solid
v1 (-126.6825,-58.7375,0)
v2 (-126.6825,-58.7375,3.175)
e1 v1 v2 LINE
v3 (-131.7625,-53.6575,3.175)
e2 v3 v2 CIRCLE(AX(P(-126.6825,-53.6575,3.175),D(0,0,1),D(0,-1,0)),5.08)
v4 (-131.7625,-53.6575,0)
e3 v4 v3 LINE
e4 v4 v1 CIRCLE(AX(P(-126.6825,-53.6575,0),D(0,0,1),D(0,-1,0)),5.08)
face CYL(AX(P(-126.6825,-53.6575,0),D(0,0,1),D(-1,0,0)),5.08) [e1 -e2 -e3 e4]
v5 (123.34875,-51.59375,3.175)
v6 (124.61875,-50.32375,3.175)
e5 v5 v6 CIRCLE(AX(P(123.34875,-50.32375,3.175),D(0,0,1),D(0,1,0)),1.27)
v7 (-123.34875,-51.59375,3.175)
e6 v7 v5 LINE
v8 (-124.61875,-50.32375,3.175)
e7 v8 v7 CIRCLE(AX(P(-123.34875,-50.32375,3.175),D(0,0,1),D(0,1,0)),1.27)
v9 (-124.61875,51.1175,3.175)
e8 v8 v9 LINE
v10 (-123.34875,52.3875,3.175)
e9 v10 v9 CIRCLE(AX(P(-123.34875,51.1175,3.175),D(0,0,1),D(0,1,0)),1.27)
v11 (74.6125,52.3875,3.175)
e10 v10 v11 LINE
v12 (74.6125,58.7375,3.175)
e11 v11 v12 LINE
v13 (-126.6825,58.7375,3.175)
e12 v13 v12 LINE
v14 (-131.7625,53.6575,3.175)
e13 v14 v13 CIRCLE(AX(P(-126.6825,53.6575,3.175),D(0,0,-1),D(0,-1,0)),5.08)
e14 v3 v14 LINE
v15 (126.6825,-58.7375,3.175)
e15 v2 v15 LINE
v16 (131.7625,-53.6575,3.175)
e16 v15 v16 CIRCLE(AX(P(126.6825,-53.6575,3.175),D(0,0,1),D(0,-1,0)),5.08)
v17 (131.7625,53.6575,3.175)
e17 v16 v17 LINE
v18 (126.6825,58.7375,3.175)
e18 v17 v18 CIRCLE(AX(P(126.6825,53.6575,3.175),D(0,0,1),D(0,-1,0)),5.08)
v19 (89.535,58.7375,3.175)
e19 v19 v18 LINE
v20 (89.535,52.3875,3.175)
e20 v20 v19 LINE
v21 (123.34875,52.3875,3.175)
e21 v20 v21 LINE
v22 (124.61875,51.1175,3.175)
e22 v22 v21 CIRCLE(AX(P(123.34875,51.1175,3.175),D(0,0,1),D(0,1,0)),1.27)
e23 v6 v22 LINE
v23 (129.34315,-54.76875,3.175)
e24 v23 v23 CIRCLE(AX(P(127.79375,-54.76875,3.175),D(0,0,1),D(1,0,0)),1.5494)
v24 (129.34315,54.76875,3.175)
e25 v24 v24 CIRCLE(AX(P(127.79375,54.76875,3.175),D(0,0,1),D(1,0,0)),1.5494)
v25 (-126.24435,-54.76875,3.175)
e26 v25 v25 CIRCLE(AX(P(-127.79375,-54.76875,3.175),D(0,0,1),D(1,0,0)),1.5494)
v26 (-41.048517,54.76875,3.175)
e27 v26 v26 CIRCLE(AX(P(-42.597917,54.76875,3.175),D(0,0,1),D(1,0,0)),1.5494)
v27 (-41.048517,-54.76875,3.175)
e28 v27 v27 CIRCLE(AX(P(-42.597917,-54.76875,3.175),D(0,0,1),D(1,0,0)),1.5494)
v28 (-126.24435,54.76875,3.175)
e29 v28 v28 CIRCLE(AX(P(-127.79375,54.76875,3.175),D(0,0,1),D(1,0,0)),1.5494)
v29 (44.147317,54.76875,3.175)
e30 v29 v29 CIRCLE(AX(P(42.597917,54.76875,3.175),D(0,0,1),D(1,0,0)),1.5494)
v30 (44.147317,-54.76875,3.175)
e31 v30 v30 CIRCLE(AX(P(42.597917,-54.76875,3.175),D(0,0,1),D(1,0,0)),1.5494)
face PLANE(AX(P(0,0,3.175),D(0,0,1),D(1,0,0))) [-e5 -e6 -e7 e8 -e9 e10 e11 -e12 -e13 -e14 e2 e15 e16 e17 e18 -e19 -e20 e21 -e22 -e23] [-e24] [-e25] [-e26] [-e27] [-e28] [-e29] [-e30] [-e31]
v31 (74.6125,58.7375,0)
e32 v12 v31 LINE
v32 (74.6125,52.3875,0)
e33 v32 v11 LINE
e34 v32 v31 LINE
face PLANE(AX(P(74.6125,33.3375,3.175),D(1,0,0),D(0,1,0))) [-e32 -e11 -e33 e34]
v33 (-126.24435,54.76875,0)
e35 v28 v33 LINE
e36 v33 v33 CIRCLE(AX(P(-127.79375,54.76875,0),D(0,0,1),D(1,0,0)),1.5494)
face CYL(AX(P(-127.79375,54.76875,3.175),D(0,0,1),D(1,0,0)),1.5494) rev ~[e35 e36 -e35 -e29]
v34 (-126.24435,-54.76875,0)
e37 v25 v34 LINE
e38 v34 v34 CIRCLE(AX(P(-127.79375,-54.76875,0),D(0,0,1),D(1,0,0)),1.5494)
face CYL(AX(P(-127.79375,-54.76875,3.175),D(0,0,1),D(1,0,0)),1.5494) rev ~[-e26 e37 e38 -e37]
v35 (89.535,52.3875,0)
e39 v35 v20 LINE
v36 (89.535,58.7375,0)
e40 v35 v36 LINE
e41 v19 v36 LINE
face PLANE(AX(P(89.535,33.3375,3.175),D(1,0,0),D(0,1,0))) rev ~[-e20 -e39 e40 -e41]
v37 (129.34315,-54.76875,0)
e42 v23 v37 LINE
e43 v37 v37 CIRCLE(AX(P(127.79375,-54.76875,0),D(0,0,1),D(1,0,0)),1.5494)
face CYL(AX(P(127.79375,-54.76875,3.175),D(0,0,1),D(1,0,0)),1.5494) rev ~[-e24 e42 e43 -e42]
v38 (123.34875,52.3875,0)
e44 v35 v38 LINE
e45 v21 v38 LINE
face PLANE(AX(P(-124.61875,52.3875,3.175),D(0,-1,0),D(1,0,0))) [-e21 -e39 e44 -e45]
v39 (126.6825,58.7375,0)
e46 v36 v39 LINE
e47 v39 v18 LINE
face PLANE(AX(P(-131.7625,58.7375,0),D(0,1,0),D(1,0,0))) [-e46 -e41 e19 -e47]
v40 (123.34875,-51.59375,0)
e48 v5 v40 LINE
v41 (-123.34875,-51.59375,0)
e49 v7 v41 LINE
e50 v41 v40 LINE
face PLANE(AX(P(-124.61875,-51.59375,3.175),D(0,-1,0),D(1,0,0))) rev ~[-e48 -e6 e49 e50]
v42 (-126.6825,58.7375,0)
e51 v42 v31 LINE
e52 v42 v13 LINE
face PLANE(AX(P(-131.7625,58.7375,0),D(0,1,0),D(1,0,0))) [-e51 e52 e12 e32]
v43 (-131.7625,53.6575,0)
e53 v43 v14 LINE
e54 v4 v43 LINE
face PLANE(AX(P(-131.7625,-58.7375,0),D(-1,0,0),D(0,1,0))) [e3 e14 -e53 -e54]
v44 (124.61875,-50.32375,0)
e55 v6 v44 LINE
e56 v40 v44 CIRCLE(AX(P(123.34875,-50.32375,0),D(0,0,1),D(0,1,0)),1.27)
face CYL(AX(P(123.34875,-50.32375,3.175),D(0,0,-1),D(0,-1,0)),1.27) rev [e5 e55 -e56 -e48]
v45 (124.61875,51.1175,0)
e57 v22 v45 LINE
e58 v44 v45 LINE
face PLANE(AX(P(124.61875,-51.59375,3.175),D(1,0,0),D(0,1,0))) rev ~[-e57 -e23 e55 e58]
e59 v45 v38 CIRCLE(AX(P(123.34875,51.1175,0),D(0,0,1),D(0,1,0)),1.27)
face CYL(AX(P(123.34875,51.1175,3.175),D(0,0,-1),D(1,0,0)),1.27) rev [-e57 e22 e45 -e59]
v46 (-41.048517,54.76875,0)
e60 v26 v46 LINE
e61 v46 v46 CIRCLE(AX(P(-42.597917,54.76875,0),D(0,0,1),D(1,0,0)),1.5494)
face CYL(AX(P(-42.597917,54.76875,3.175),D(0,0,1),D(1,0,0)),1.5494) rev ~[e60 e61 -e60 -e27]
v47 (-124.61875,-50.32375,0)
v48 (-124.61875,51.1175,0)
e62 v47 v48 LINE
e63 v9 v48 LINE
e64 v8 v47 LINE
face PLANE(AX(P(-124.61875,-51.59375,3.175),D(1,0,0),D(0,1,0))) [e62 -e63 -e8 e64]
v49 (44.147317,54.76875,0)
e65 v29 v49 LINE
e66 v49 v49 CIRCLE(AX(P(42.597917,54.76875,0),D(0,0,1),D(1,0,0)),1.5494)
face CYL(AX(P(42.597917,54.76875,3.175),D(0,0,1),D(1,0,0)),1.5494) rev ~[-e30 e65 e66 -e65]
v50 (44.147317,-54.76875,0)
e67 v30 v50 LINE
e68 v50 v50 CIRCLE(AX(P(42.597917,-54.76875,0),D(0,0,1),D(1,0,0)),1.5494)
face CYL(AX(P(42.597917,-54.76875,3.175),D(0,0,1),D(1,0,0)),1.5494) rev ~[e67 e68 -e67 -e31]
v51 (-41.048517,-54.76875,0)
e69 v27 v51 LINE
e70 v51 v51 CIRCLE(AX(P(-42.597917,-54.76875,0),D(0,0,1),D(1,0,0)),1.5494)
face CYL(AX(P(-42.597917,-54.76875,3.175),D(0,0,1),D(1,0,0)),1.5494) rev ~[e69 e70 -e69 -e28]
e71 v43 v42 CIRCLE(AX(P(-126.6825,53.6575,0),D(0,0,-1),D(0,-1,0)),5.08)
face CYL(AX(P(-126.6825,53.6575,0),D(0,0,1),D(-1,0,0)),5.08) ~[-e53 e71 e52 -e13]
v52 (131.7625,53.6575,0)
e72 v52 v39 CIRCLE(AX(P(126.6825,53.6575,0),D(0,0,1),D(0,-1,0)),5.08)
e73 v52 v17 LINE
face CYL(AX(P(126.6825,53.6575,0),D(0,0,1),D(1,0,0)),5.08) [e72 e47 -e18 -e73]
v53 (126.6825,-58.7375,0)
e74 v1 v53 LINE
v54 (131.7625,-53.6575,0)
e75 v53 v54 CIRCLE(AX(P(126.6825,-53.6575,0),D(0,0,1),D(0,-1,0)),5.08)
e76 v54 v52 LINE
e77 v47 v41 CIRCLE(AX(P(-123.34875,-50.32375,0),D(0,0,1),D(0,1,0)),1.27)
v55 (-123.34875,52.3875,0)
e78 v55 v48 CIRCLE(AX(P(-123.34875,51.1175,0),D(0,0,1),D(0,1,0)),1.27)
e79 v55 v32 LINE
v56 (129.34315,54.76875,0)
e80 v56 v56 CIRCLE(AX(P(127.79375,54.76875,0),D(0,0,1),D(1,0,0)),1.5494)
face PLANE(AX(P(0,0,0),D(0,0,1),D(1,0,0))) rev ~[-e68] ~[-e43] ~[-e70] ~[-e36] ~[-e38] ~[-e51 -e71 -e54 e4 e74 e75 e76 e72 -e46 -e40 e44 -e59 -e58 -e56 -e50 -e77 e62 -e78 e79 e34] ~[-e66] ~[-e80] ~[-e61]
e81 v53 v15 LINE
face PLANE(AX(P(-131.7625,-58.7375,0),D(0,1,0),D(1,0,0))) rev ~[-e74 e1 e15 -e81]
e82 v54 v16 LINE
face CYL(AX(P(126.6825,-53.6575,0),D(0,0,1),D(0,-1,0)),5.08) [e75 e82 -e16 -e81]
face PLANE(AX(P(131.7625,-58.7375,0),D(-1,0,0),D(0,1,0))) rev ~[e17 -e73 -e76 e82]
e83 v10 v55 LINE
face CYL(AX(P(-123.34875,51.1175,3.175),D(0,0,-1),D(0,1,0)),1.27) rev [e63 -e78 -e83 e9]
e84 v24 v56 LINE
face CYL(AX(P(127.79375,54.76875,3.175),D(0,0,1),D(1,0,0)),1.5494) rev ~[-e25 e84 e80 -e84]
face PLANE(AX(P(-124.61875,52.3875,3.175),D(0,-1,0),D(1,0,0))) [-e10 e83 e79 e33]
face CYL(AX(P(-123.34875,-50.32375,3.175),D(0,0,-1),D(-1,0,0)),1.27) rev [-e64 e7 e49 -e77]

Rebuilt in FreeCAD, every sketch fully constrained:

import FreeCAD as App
import Part
import Sketcher

V = App.Vector
Q = App.Units.Quantity


def edges_at(feature, points):
    """Names of the edges that pass closest to the given points."""
    edges = feature.Shape.Edges
    near = lambda p: min(range(len(edges)), key=lambda i: edges[i].distToShape(Part.Vertex(*p))[0])
    return sorted({f"Edge{near(p) + 1}" for p in points})

doc = App.newDocument("Part")
params = doc.addObject("Spreadsheet::Sheet", "Params")
for row, (alias, value) in enumerate([
    ("sketch1_width", "10.375 in"),
    ("sketch1_height", "4.625 in"),
    ("pad1_length", "0.125 in"),
    ("sketch2_width", "9.8125 in"),
    ("sketch2_height", "4.09375 in"),
    ("sketch3_height", "1 in"),
    ("sketch4_diameter", "0.122 in"),
    ("fillet_radius", "0.2 in"),
    ("fillet2_radius", "0.05 in"),
], start=1):
    params.set(f"A{row}", alias)
    params.set(f"B{row}", "=" + value)
    params.setAlias(f"B{row}", alias)

body = doc.addObject("PartDesign::Body", "Body")

sketch1 = body.newObject("Sketcher::SketchObject", "Sketch")
sketch1.AttachmentSupport = (doc.getObject("XY_Plane"), [""])
sketch1.MapMode = "FlatFace"
sketch1.addGeometry(Part.LineSegment(V(-131.7625, 58.7375, 0), V(-131.7625, -58.7375, 0)), False)
sketch1.addGeometry(Part.LineSegment(V(-131.7625, -58.7375, 0), V(131.7625, -58.7375, 0)), False)
sketch1.addGeometry(Part.LineSegment(V(131.7625, -58.7375, 0), V(131.7625, 58.7375, 0)), False)
sketch1.addGeometry(Part.LineSegment(V(131.7625, 58.7375, 0), V(-131.7625, 58.7375, 0)), False)
sketch1.addConstraint(Sketcher.Constraint("Coincident", 0, 2, 1, 1))
sketch1.addConstraint(Sketcher.Constraint("Coincident", 1, 2, 2, 1))
sketch1.addConstraint(Sketcher.Constraint("Coincident", 2, 2, 3, 1))
sketch1.addConstraint(Sketcher.Constraint("Coincident", 3, 2, 0, 1))
sketch1.addConstraint(Sketcher.Constraint("Vertical", 0))
sketch1.addConstraint(Sketcher.Constraint("Horizontal", 1))
sketch1.addConstraint(Sketcher.Constraint("Vertical", 2))
sketch1.addConstraint(Sketcher.Constraint("Horizontal", 3))
sketch1.addConstraint(Sketcher.Constraint("Symmetric", 0, 2, 2, 2, -1, 1))
sketch1.addConstraint(Sketcher.Constraint("DistanceX", 1, 1, 1, 2, Q("10.375 in")))
sketch1.addConstraint(Sketcher.Constraint("DistanceY", 0, 2, 0, 1, Q("4.625 in")))
sketch1.setExpression("Constraints[9]", "Params.sketch1_width")
sketch1.setExpression("Constraints[10]", "Params.sketch1_height")
pad1 = body.newObject("PartDesign::Pad", "Pad")
pad1.Profile = sketch1
pad1.setExpression("Length", "Params.pad1_length")

sketch2 = body.newObject("Sketcher::SketchObject", "Sketch001")
sketch2.AttachmentSupport = (doc.getObject("XY_Plane"), [""])
sketch2.MapMode = "FlatFace"
sketch2.AttachmentOffset = App.Placement(V(0, 0, 0.125 * 25.4), App.Rotation())
sketch2.addGeometry(Part.LineSegment(V(-124.61875, 52.3875, 0), V(-124.61875, -51.59375, 0)), False)
sketch2.addGeometry(Part.LineSegment(V(-124.61875, -51.59375, 0), V(124.61875, -51.59375, 0)), False)
sketch2.addGeometry(Part.LineSegment(V(124.61875, -51.59375, 0), V(124.61875, 52.3875, 0)), False)
sketch2.addGeometry(Part.LineSegment(V(124.61875, 52.3875, 0), V(-124.61875, 52.3875, 0)), False)
sketch2.addConstraint(Sketcher.Constraint("Coincident", 0, 2, 1, 1))
sketch2.addConstraint(Sketcher.Constraint("Coincident", 1, 2, 2, 1))
sketch2.addConstraint(Sketcher.Constraint("Coincident", 2, 2, 3, 1))
sketch2.addConstraint(Sketcher.Constraint("Coincident", 3, 2, 0, 1))
sketch2.addConstraint(Sketcher.Constraint("Vertical", 0))
sketch2.addConstraint(Sketcher.Constraint("Horizontal", 1))
sketch2.addConstraint(Sketcher.Constraint("Vertical", 2))
sketch2.addConstraint(Sketcher.Constraint("Horizontal", 3))
sketch2.addConstraint(Sketcher.Constraint("DistanceX", 1, 1, 1, 2, Q("9.8125 in")))
sketch2.addConstraint(Sketcher.Constraint("DistanceY", 0, 2, 0, 1, Q("4.09375 in")))
sketch2.addConstraint(Sketcher.Constraint("DistanceX", 0, 2, -1, 1, Q("4.90625 in")))
sketch2.addConstraint(Sketcher.Constraint("DistanceY", 0, 2, -1, 1, Q("2.03125 in")))
sketch2.setExpression("Constraints[8]", "Params.sketch2_width")
sketch2.setExpression("Constraints[9]", "Params.sketch2_height")
pocket1 = body.newObject("PartDesign::Pocket", "Pocket")
pocket1.Profile = sketch2
pocket1.Type = "ThroughAll"

sketch3 = body.newObject("Sketcher::SketchObject", "Sketch002")
sketch3.AttachmentSupport = (doc.getObject("XY_Plane"), [""])
sketch3.MapMode = "FlatFace"
sketch3.AttachmentOffset = App.Placement(V(0, 0, 0.125 * 25.4), App.Rotation())
sketch3.addGeometry(Part.LineSegment(V(74.6125, 58.7375, 0), V(74.6125, 33.3375, 0)), False)
sketch3.addGeometry(Part.LineSegment(V(74.6125, 33.3375, 0), V(89.535, 33.3375, 0)), False)
sketch3.addGeometry(Part.LineSegment(V(89.535, 33.3375, 0), V(89.535, 58.7375, 0)), False)
sketch3.addGeometry(Part.LineSegment(V(89.535, 58.7375, 0), V(74.6125, 58.7375, 0)), False)
sketch3.addConstraint(Sketcher.Constraint("Coincident", 0, 2, 1, 1))
sketch3.addConstraint(Sketcher.Constraint("Coincident", 1, 2, 2, 1))
sketch3.addConstraint(Sketcher.Constraint("Coincident", 2, 2, 3, 1))
sketch3.addConstraint(Sketcher.Constraint("Coincident", 3, 2, 0, 1))
sketch3.addConstraint(Sketcher.Constraint("Vertical", 0))
sketch3.addConstraint(Sketcher.Constraint("Horizontal", 1))
sketch3.addConstraint(Sketcher.Constraint("Vertical", 2))
sketch3.addConstraint(Sketcher.Constraint("Horizontal", 3))
sketch3.addConstraint(Sketcher.Constraint("DistanceY", 0, 2, 0, 1, Q("1 in")))
sketch3.addConstraint(Sketcher.Constraint("DistanceX", 1, 1, 1, 2, Q("0.5875 in")))
sketch3.addConstraint(Sketcher.Constraint("DistanceX", -1, 1, 0, 2, Q("2.9375 in")))
sketch3.addConstraint(Sketcher.Constraint("DistanceY", -1, 1, 0, 2, Q("1.3125 in")))
sketch3.setExpression("Constraints[8]", "Params.sketch3_height")
pocket2 = body.newObject("PartDesign::Pocket", "Pocket001")
pocket2.Profile = sketch3
pocket2.Type = "ThroughAll"

sketch4 = body.newObject("Sketcher::SketchObject", "Sketch003")
sketch4.AttachmentSupport = (doc.getObject("XY_Plane"), [""])
sketch4.MapMode = "FlatFace"
sketch4.AttachmentOffset = App.Placement(V(0, 0, 0.125 * 25.4), App.Rotation())
sketch4.addGeometry(Part.Circle(V(-42.597917, 54.76875, 0), V(0, 0, 1), 1.5494), False)
sketch4.addGeometry(Part.Circle(V(42.597917, 54.76875, 0), V(0, 0, 1), 1.5494), False)
sketch4.addGeometry(Part.Circle(V(42.597917, -54.76875, 0), V(0, 0, 1), 1.5494), False)
sketch4.addGeometry(Part.Circle(V(-42.597917, -54.76875, 0), V(0, 0, 1), 1.5494), False)
sketch4.addGeometry(Part.Circle(V(-127.79375, -54.76875, 0), V(0, 0, 1), 1.5494), False)
sketch4.addGeometry(Part.Circle(V(-127.79375, 54.76875, 0), V(0, 0, 1), 1.5494), False)
sketch4.addGeometry(Part.Circle(V(127.79375, 54.76875, 0), V(0, 0, 1), 1.5494), False)
sketch4.addGeometry(Part.Circle(V(127.79375, -54.76875, 0), V(0, 0, 1), 1.5494), False)
sketch4.addConstraint(Sketcher.Constraint("Equal", 0, 1))
sketch4.addConstraint(Sketcher.Constraint("Equal", 1, 2))
sketch4.addConstraint(Sketcher.Constraint("Equal", 2, 3))
sketch4.addConstraint(Sketcher.Constraint("Equal", 3, 4))
sketch4.addConstraint(Sketcher.Constraint("Equal", 4, 5))
sketch4.addConstraint(Sketcher.Constraint("Equal", 5, 6))
sketch4.addConstraint(Sketcher.Constraint("Equal", 6, 7))
sketch4.addConstraint(Sketcher.Constraint("Symmetric", 0, 3, 2, 3, -1, 1))
sketch4.addConstraint(Sketcher.Constraint("Symmetric", 1, 3, 3, 3, -1, 1))
sketch4.addConstraint(Sketcher.Constraint("Symmetric", 4, 3, 6, 3, -1, 1))
sketch4.addConstraint(Sketcher.Constraint("Symmetric", 5, 3, 7, 3, -1, 1))
sketch4.addConstraint(Sketcher.Constraint("Symmetric", 0, 3, 1, 3, -2))
sketch4.addConstraint(Sketcher.Constraint("Symmetric", 5, 3, 6, 3, -2))
sketch4.addConstraint(Sketcher.Constraint("Horizontal", 3, 3, 4, 3))
sketch4.addConstraint(Sketcher.Constraint("Diameter", 0, Q("0.122 in")))
sketch4.addConstraint(Sketcher.Constraint("DistanceY", -1, 1, 0, 3, Q("2.15625 in")))
sketch4.addConstraint(Sketcher.Constraint("DistanceX", 4, 3, -1, 1, Q("5.03125 in")))
sketch4.addConstraint(Sketcher.Constraint("DistanceX", 0, 3, -1, 1, 42.597917))
sketch4.setExpression("Constraints[14]", "Params.sketch4_diameter")
pocket3 = body.newObject("PartDesign::Pocket", "Pocket002")
pocket3.Profile = sketch4
pocket3.Type = "ThroughAll"
doc.recompute()

fillet = body.newObject("PartDesign::Fillet", "Fillet")
fillet.Base = (pocket3, edges_at(pocket3, [
    (-131.762, 58.737, 1.587),
    (-131.762, -58.737, 1.587),
    (131.762, -58.737, 1.587),
    (131.762, 58.737, 1.587),
]))
fillet.setExpression("Radius", "Params.fillet_radius")
doc.recompute()

fillet2 = body.newObject("PartDesign::Fillet", "Fillet001")
fillet2.Base = (fillet, edges_at(fillet, [
    (-124.619, 52.388, 1.587),
    (124.619, 52.388, 1.587),
    (-124.619, -51.594, 1.587),
    (124.619, -51.594, 1.587),
]))
fillet2.setExpression("Radius", "Params.fillet2_radius")

doc.recompute()
